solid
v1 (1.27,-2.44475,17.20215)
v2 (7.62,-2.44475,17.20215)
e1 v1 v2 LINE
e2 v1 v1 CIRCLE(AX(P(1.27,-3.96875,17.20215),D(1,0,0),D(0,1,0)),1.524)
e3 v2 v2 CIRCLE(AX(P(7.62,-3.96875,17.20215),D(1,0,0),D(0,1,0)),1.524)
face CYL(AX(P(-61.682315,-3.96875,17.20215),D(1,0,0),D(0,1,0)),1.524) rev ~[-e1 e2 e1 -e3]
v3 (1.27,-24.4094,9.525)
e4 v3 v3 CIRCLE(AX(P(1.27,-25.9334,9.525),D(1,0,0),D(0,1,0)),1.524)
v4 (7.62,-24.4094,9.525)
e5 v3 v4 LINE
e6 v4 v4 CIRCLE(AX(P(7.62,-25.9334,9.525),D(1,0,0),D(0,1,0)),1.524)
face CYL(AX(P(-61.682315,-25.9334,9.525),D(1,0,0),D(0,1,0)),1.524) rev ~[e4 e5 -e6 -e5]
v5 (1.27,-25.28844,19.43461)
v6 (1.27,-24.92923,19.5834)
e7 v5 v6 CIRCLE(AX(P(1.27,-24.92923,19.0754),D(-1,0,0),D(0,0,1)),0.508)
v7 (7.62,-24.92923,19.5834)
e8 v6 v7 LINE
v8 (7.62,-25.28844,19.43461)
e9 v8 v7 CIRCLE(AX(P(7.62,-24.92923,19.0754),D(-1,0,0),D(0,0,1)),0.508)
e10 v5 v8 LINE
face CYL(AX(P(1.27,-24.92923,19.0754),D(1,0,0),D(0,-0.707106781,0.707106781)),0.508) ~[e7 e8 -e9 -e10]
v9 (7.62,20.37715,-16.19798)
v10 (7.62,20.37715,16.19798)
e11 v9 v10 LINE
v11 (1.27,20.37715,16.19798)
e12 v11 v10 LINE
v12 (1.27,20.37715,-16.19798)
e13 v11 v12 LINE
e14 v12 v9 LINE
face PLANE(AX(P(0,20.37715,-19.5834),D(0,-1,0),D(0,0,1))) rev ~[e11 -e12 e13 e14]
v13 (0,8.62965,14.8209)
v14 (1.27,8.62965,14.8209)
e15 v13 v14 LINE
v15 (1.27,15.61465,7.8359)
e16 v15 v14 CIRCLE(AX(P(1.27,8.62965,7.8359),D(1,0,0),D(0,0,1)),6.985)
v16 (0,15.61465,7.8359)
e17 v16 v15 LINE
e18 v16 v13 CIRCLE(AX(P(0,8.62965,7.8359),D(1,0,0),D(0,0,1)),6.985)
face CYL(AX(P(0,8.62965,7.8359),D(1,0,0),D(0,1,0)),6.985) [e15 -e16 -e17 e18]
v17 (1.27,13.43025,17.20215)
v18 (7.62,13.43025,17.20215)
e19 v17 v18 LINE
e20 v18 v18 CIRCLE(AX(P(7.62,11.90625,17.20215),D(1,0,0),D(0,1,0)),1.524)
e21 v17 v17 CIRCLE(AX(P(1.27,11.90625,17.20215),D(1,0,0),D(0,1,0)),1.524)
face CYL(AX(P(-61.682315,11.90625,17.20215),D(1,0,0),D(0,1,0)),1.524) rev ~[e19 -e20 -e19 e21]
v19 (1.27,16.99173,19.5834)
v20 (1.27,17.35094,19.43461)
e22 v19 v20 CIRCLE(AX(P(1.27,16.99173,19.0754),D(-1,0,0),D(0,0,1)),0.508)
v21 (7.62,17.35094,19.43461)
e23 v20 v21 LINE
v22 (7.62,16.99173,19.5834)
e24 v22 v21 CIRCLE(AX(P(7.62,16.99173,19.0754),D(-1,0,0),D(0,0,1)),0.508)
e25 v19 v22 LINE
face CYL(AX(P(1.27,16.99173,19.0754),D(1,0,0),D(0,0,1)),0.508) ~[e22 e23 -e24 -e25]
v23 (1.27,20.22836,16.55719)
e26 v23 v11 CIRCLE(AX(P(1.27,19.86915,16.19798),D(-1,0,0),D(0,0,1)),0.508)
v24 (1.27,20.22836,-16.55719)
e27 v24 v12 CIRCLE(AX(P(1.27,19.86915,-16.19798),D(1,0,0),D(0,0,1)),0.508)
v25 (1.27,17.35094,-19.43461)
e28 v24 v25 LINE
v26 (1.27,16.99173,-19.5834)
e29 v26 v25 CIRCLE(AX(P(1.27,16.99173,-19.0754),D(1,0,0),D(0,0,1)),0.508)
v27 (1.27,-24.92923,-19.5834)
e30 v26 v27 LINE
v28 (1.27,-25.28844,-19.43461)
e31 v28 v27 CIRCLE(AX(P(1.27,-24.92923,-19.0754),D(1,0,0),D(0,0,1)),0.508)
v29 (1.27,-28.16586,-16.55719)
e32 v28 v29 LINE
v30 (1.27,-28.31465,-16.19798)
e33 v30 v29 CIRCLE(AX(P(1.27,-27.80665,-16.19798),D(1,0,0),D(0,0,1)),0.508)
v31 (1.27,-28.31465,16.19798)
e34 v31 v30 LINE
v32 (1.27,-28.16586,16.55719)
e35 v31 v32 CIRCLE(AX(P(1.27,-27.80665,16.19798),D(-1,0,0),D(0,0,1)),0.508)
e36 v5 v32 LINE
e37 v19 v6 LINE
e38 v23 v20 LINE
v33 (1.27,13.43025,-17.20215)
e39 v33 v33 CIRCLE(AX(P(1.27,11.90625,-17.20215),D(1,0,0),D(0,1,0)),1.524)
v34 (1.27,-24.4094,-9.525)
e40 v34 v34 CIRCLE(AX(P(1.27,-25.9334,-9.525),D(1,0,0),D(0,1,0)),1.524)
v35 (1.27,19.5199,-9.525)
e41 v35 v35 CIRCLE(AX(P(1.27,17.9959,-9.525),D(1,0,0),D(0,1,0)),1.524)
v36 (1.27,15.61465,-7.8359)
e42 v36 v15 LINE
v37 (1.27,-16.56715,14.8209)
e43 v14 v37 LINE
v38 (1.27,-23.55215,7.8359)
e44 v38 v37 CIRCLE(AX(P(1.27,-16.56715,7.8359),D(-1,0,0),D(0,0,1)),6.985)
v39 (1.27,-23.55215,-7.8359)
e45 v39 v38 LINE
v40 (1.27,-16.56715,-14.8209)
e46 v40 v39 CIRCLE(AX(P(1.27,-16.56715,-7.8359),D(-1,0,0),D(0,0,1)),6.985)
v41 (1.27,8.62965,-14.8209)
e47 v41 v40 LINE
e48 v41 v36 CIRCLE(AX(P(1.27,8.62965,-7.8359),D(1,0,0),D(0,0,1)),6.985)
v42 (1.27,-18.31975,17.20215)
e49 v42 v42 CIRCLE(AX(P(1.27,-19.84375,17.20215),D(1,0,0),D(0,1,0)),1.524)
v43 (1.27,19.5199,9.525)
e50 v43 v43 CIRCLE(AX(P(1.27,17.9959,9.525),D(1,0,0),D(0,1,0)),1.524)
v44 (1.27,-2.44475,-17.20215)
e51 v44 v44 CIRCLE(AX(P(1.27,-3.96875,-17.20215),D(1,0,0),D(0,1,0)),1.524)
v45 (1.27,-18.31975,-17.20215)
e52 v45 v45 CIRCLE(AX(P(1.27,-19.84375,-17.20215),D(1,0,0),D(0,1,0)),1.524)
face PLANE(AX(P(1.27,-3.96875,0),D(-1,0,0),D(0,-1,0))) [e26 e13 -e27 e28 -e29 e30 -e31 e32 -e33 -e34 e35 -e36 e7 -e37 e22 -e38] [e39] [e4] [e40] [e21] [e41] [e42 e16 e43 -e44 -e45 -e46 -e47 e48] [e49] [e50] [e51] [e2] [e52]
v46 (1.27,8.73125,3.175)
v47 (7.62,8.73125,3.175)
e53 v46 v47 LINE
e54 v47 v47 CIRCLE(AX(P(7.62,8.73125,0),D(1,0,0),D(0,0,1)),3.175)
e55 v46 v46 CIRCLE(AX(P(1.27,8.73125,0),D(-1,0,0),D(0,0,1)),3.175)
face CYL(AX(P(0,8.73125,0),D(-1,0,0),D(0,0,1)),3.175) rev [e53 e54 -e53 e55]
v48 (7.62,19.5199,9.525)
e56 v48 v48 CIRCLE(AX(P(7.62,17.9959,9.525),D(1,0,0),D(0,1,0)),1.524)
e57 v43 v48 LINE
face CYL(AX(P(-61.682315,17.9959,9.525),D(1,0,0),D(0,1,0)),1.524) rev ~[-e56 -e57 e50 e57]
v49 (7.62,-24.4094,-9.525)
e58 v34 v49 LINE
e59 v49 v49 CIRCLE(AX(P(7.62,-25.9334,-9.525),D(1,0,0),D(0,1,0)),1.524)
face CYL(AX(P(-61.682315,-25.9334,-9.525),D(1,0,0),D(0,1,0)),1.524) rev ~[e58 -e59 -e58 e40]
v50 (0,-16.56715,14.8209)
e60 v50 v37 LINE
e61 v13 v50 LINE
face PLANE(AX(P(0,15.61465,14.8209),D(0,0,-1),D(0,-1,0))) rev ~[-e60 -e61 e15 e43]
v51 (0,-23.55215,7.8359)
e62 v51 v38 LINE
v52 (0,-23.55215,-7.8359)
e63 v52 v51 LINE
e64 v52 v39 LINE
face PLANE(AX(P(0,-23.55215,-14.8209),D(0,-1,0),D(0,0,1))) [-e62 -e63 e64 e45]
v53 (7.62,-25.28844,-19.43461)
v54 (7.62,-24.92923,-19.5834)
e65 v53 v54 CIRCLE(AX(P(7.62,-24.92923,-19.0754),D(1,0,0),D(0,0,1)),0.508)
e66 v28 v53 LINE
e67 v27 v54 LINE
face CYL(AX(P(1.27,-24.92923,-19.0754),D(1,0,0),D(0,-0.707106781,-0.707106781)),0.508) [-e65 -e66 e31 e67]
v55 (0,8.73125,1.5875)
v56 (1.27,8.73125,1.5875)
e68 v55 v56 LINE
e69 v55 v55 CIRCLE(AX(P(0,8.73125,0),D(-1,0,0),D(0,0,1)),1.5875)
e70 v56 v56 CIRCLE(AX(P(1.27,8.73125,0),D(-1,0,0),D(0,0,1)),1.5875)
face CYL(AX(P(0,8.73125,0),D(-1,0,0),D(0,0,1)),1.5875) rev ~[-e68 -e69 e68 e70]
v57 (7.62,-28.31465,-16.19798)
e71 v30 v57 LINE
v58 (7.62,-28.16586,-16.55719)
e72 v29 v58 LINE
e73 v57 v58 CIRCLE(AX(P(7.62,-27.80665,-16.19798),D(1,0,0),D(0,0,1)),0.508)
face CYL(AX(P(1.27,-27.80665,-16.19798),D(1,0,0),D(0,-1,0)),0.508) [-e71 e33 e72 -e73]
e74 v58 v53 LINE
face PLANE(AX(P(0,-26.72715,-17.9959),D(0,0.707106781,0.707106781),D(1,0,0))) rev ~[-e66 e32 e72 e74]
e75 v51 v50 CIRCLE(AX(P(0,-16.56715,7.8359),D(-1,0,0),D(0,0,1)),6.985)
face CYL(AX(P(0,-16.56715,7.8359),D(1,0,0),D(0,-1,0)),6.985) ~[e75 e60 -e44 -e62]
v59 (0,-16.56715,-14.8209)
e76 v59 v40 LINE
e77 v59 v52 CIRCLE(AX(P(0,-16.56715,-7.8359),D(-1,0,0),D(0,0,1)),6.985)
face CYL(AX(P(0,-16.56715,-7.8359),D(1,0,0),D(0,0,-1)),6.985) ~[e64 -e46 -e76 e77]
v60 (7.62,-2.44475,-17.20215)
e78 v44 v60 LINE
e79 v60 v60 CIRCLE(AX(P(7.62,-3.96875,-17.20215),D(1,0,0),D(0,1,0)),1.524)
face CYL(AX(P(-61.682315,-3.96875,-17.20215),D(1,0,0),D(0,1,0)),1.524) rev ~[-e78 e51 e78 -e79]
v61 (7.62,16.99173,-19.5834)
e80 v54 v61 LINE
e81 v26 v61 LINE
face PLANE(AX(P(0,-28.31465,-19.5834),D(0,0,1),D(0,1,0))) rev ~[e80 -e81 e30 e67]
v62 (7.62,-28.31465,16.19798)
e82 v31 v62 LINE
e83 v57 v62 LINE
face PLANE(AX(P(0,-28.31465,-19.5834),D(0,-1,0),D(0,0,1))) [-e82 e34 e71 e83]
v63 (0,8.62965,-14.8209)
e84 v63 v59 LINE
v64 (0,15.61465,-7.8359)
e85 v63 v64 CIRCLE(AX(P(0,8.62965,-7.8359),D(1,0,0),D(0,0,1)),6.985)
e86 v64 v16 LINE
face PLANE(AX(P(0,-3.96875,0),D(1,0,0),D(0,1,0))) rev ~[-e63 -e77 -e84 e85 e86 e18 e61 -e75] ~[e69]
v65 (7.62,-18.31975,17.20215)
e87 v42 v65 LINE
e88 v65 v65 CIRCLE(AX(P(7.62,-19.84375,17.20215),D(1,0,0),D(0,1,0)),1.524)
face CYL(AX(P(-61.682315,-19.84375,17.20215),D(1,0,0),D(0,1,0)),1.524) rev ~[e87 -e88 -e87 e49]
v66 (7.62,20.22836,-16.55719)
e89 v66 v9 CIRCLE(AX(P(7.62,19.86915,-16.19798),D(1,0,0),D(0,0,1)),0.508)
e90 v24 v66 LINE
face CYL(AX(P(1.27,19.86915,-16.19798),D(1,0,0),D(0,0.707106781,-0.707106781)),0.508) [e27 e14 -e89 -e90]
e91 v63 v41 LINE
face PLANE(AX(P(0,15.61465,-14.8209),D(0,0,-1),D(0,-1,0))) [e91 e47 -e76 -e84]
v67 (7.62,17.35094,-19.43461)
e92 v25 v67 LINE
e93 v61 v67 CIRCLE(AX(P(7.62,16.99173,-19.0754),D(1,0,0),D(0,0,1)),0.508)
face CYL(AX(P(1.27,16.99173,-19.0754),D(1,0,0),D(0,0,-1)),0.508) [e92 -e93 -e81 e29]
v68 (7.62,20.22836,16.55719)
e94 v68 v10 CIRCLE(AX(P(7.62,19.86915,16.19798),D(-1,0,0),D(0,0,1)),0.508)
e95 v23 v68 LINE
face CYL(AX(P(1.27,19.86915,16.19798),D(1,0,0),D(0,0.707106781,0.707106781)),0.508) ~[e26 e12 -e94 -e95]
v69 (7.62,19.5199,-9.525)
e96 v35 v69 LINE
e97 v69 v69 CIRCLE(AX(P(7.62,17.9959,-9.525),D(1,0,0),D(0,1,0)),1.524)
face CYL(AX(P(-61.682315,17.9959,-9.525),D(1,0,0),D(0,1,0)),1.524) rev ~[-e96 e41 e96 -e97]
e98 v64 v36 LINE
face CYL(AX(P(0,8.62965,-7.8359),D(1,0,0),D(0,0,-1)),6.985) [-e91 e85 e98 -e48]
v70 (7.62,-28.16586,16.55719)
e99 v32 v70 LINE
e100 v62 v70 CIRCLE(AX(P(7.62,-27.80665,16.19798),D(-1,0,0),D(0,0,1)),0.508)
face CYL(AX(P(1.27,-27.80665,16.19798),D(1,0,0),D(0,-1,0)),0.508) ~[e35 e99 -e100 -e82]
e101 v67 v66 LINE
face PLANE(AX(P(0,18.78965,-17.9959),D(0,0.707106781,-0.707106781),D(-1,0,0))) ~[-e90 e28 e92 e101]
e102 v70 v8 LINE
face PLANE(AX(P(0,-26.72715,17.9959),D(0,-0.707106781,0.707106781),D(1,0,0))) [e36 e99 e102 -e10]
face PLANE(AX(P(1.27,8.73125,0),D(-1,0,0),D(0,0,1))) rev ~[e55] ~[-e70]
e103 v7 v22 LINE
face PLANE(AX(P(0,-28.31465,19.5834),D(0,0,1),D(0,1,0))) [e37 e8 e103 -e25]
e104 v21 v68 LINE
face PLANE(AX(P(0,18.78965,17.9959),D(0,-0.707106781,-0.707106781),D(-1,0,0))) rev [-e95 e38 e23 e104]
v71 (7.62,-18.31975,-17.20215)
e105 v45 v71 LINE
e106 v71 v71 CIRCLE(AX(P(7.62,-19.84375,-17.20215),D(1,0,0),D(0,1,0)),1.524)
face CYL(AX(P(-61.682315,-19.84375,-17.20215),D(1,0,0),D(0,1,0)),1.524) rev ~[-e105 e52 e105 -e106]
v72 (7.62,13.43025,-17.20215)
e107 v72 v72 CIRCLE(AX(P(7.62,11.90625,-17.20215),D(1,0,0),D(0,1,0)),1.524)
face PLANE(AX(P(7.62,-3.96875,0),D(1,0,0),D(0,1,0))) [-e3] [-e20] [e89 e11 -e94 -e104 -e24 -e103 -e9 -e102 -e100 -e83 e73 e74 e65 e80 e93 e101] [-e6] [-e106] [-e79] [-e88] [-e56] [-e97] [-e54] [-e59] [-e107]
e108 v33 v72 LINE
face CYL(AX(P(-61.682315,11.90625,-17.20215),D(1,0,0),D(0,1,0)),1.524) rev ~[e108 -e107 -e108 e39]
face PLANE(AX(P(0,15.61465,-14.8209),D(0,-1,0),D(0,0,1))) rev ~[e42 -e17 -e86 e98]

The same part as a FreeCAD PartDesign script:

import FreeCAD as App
import Part
import Sketcher
from FreeCAD import Vector
Q = App.Units.Quantity


def edges_at(feature, points):
    """Names of the edges that pass closest to the given points."""
    edges = feature.Shape.Edges
    near = lambda p: min(range(len(edges)), key=lambda i: edges[i].distToShape(Part.Vertex(*p))[0])
    return sorted({f"Edge{near(p) + 1}" for p in points})

doc = App.newDocument("Part")
body = doc.addObject("PartDesign::Body", "Body")

# Sketch on YZ plane
sketch1 = doc.addObject("Sketcher::SketchObject", "Sketch")
body.addObject(sketch1)
sketch1.AttachmentSupport = (doc.YZ_Plane, [""])
sketch1.MapMode = "FlatFace"
sketch1.addGeometry([
    Part.LineSegment(Vector(-28.3, 19.6, 0), Vector(-28.3, -19.6, 0)),  # 0
    Part.LineSegment(Vector(-28.3, -19.6, 0), Vector(20.4, -19.6, 0)),  # 1
    Part.LineSegment(Vector(20.4, -19.6, 0), Vector(20.4, 19.6, 0)),  # 2
    Part.LineSegment(Vector(20.4, 19.6, 0), Vector(-28.3, 19.6, 0)),  # 3
    Part.Circle(Vector(-8.7, 0, 0), Vector(0, 0, 1), 4.8),  # 4
    Part.Circle(Vector(8.7, 0, 0), Vector(0, 0, 1), 3.2),  # 5
], False)
sketch1.addConstraint([
    Sketcher.Constraint("Coincident", 0, 2, 1, 1),
    Sketcher.Constraint("Coincident", 1, 2, 2, 1),
    Sketcher.Constraint("Coincident", 2, 2, 3, 1),
    Sketcher.Constraint("Coincident", 3, 2, 0, 1),
    Sketcher.Constraint("Vertical", 0),
    Sketcher.Constraint("Horizontal", 1),
    Sketcher.Constraint("Vertical", 2),
    Sketcher.Constraint("Horizontal", 3),
    Sketcher.Constraint("Symmetric", 4, 3, 5, 3, -1, 1),
    Sketcher.Constraint("PointOnObject", 4, 3, -1),
    Sketcher.Constraint("Diameter", 5, Q("0.25 in")),
    Sketcher.Constraint("Diameter", 4, Q("0.375 in")),
    Sketcher.Constraint("DistanceX", 1, 1, 1, 2, Q("1.917 in")),
    Sketcher.Constraint("DistanceY", 0, 2, 0, 1, Q("1.542 in")),
    Sketcher.Constraint("DistanceX", 4, 3, -1, 1, Q("0.34375 in")),
    Sketcher.Constraint("DistanceY", 0, 2, -1, 1, Q("0.771 in")),
    Sketcher.Constraint("DistanceX", 0, 2, 4, 3, Q("0.771 in")),
])
pad1 = doc.addObject("PartDesign::Pad", "Pad")
body.addObject(pad1)
pad1.Profile = sketch1
pad1.Length = Q("0.3 in")
doc.recompute()

chamfer = doc.addObject("PartDesign::Chamfer", "Chamfer")
body.addObject(chamfer)
chamfer.Base = (pad1, edges_at(pad1, [
    (3.81, 20.377, -19.583),
    (3.81, -28.315, -19.583),
    (3.81, -28.315, 19.583),
    (3.81, 20.377, 19.583),
]))
chamfer.Size = Q("0.125 in")

# Sketch on YZ plane
sketch2 = doc.addObject("Sketcher::SketchObject", "Sketch001")
body.addObject(sketch2)
sketch2.AttachmentSupport = (doc.YZ_Plane, [""])
sketch2.MapMode = "FlatFace"
sketch2.addGeometry([
    Part.LineSegment(Vector(18, -22, 0), Vector(-26, -22, 0)),  # 0
    Part.LineSegment(Vector(-26, -22, 0), Vector(-31, -17, 0)),  # 1
    Part.LineSegment(Vector(-31, -17, 0), Vector(-31, 17, 0)),  # 2
    Part.LineSegment(Vector(-31, 17, 0), Vector(-26, 22, 0)),  # 3
    Part.LineSegment(Vector(-26, 22, 0), Vector(18, 22, 0)),  # 4
    Part.LineSegment(Vector(18, 22, 0), Vector(23, 17, 0)),  # 5
    Part.LineSegment(Vector(23, 17, 0), Vector(23, -17, 0)),  # 6
    Part.LineSegment(Vector(23, -17, 0), Vector(18, -22, 0)),  # 7
    Part.LineSegment(Vector(-24, -15, 0), Vector(16, -15, 0)),  # 8
    Part.LineSegment(Vector(16, -15, 0), Vector(16, 15, 0)),  # 9
    Part.LineSegment(Vector(16, 15, 0), Vector(-24, 15, 0)),  # 10
    Part.LineSegment(Vector(-24, 15, 0), Vector(-24, -15, 0)),  # 11
], False)
sketch2.addConstraint([
    Sketcher.Constraint("Coincident", 0, 2, 1, 1),
    Sketcher.Constraint("Coincident", 1, 2, 2, 1),
    Sketcher.Constraint("Coincident", 2, 2, 3, 1),
    Sketcher.Constraint("Coincident", 3, 2, 4, 1),
    Sketcher.Constraint("Coincident", 4, 2, 5, 1),
    Sketcher.Constraint("Coincident", 5, 2, 6, 1),
    Sketcher.Constraint("Coincident", 6, 2, 7, 1),
    Sketcher.Constraint("Coincident", 7, 2, 0, 1),
    Sketcher.Constraint("Coincident", 8, 2, 9, 1),
    Sketcher.Constraint("Coincident", 9, 2, 10, 1),
    Sketcher.Constraint("Coincident", 10, 2, 11, 1),
    Sketcher.Constraint("Coincident", 11, 2, 8, 1),
    Sketcher.Constraint("Horizontal", 0),
    Sketcher.Constraint("Vertical", 2),
    Sketcher.Constraint("Horizontal", 4),
    Sketcher.Constraint("Vertical", 6),
    Sketcher.Constraint("Horizontal", 8),
    Sketcher.Constraint("Vertical", 9),
    Sketcher.Constraint("Horizontal", 10),
    Sketcher.Constraint("Vertical", 11),
    Sketcher.Constraint("Symmetric", 0, 2, 3, 2, -1),
    Sketcher.Constraint("Perpendicular", 1, 3),
    Sketcher.Constraint("Perpendicular", 3, 5),
    Sketcher.Constraint("Perpendicular", 5, 7),
    Sketcher.Constraint("Horizontal", 2, 2, 5, 2),
    Sketcher.Constraint("Horizontal", 1, 2, 6, 2),
    Sketcher.Constraint("Vertical", 4, 2, 7, 2),
    Sketcher.Constraint("DistanceX", 8, 1, 8, 2, Q("1.542 in")),
    Sketcher.Constraint("DistanceY", 9, 1, 9, 2, Q("1.167 in")),
    Sketcher.Constraint("DistanceY", 0, 2, -1, 1, Q("0.871 in")),
    Sketcher.Constraint("DistanceX", 2, 2, 5, 2, Q("2.117 in")),
    Sketcher.Constraint("DistanceY", 8, 2, -1, 1, Q("0.5835 in")),
    Sketcher.Constraint("DistanceX", 8, 2, 6, 2, Q("0.2875 in")),
    Sketcher.Constraint("DistanceX", 0, 2, 0, 1, Q("44.446005 mm")),
    Sketcher.Constraint("DistanceX", 1, 2, -1, 1, Q("30.85465 mm")),
])
pocket1 = doc.addObject("PartDesign::Pocket", "Pocket")
body.addObject(pocket1)
pocket1.Profile = sketch2
pocket1.Length = Q("0.05 in")
pocket1.Reversed = True

# Sketch on YZ plane
sketch3 = doc.addObject("Sketcher::SketchObject", "Sketch002")
body.addObject(sketch3)
sketch3.AttachmentSupport = (doc.YZ_Plane, [""])
sketch3.MapMode = "FlatFace"
sketch3.AttachmentOffset = App.Placement(Vector(0, 0, 0.05 * 25.4), App.Rotation())
sketch3.addGeometry([
    Part.Circle(Vector(18, 9.5, 0), Vector(0, 0, 1), 1.5),  # 0
    Part.Circle(Vector(11.9, 17.2, 0), Vector(0, 0, 1), 1.5),  # 1
    Part.Circle(Vector(-4, 17.2, 0), Vector(0, 0, 1), 1.5),  # 2
    Part.Circle(Vector(-19.8, 17.2, 0), Vector(0, 0, 1), 1.5),  # 3
    Part.Circle(Vector(-25.9, 9.5, 0), Vector(0, 0, 1), 1.5),  # 4
    Part.Circle(Vector(-25.9, -9.5, 0), Vector(0, 0, 1), 1.5),  # 5
    Part.Circle(Vector(-19.8, -17.2, 0), Vector(0, 0, 1), 1.5),  # 6
    Part.Circle(Vector(-4, -17.2, 0), Vector(0, 0, 1), 1.5),  # 7
    Part.Circle(Vector(11.9, -17.2, 0), Vector(0, 0, 1), 1.5),  # 8
    Part.Circle(Vector(18, -9.5, 0), Vector(0, 0, 1), 1.5),  # 9
], False)
sketch3.addConstraint([
    Sketcher.Constraint("Equal", 0, 1),
    Sketcher.Constraint("Equal", 1, 2),
    Sketcher.Constraint("Equal", 2, 3),
    Sketcher.Constraint("Equal", 3, 4),
    Sketcher.Constraint("Equal", 4, 5),
    Sketcher.Constraint("Equal", 5, 6),
    Sketcher.Constraint("Equal", 6, 7),
    Sketcher.Constraint("Equal", 7, 8),
    Sketcher.Constraint("Equal", 8, 9),
    Sketcher.Constraint("Symmetric", 4, 3, 5, 3, -1),
    Sketcher.Constraint("Symmetric", 3, 3, 6, 3, -1),
    Sketcher.Constraint("Symmetric", 2, 3, 7, 3, -1),
    Sketcher.Constraint("Symmetric", 1, 3, 8, 3, -1),
    Sketcher.Constraint("Symmetric", 0, 3, 9, 3, -1),
    Sketcher.Constraint("Horizontal", 1, 3, 2, 3),
    Sketcher.Constraint("Horizontal", 2, 3, 3, 3),
    Sketcher.Constraint("Horizontal", 0, 3, 4, 3),
    Sketcher.Constraint("Diameter", 0, Q("0.12 in")),
    Sketcher.Constraint("DistanceX", 3, 3, 1, 3, Q("1.25 in")),
    Sketcher.Constraint("DistanceY", 5, 3, 4, 3, Q("0.75 in")),
    Sketcher.Constraint("DistanceX", -1, 1, 1, 3, Q("0.46875 in")),
    Sketcher.Constraint("DistanceX", 2, 3, -1, 1, Q("0.15625 in")),
    Sketcher.Constraint("DistanceX", 4, 3, -1, 1, Q("1.021 in")),
    Sketcher.Constraint("DistanceX", -1, 1, 0, 3, Q("0.7085 in")),
    Sketcher.Constraint("DistanceY", 6, 3, 3, 3, Q("1.3545 in")),
])
doc.recompute()
hole = doc.addObject("PartDesign::Hole", "Hole")
body.addObject(hole)
hole.Profile = sketch3
hole.ThreadType = "None"
hole.Diameter = Q("0.12 in")
hole.DepthType = "ThroughAll"
hole.Reversed = True

# Sketch on YZ plane
sketch4 = doc.addObject("Sketcher::SketchObject", "Sketch003")
body.addObject(sketch4)
sketch4.AttachmentSupport = (doc.YZ_Plane, [""])
sketch4.MapMode = "FlatFace"
sketch4.addGeometry([
    Part.Circle(Vector(8.7, 0, 0), Vector(0, 0, 1), 4.4),
    Part.Circle(Vector(8.7, 0, 0), Vector(0, 0, 1), 1.6),
], False)
sketch4.addConstraint([
    Sketcher.Constraint("Coincident", 1, 3, 0, 3),
    Sketcher.Constraint("PointOnObject", 0, 3, -1),
    Sketcher.Constraint("Diameter", 1, Q("0.125 in")),
    Sketcher.Constraint("Diameter", 0, Q("8.831682 mm")),
    Sketcher.Constraint("DistanceX", -1, 1, 0, 3, Q("0.34375 in")),
])
pad2 = doc.addObject("PartDesign::Pad", "Pad001")
body.addObject(pad2)
pad2.Profile = sketch4
pad2.Length = Q("0.05 in")

# Sketch on YZ plane
sketch5 = doc.addObject("Sketcher::SketchObject", "Sketch004")
body.addObject(sketch5)
sketch5.AttachmentSupport = (doc.YZ_Plane, [""])
sketch5.MapMode = "FlatFace"
sketch5.AttachmentOffset = App.Placement(Vector(0, 0, 0.3 * 25.4), App.Rotation())
sketch5.addGeometry(Part.Circle(Vector(-9, 0, 0), Vector(0, 0, 1), 6), False)
sketch5.addConstraint([
    Sketcher.Constraint("PointOnObject", 0, 3, -1),
    Sketcher.Constraint("Diameter", 0, Q("0.475 in")),
    Sketcher.Constraint("DistanceX", 0, 3, -1, 1, Q("0.34375 in")),
])
pad3 = doc.addObject("PartDesign::Pad", "Pad002")
body.addObject(pad3)
pad3.Profile = sketch5
pad3.Length = Q("0.3 in")
pad3.Reversed = True
doc.recompute()

fillet = doc.addObject("PartDesign::Fillet", "Fillet")
body.addObject(fillet)
fillet.Base = (pad3, edges_at(pad3, [
    (0.635, 15.615, 14.821),
    (0.635, -23.552, 14.821),
    (0.635, -23.552, -14.821),
    (0.635, 15.615, -14.821),
]))
fillet.Radius = Q("0.275 in")
doc.recompute()

fillet2 = doc.addObject("PartDesign::Fillet", "Fillet001")
body.addObject(fillet2)
fillet2.Base = (fillet, edges_at(fillet, [
    (4.445, -25.14, -19.583),
    (4.445, -28.315, 16.408),
    (4.445, 20.377, -16.408),
    (4.445, 17.202, 19.583),
    (4.445, -25.14, 19.583),
    (4.445, 20.377, 16.408),
    (4.445, 17.202, -19.583),
    (4.445, -28.315, -16.408),
]))
fillet2.Radius = Q("0.02 in")

doc.recompute()
